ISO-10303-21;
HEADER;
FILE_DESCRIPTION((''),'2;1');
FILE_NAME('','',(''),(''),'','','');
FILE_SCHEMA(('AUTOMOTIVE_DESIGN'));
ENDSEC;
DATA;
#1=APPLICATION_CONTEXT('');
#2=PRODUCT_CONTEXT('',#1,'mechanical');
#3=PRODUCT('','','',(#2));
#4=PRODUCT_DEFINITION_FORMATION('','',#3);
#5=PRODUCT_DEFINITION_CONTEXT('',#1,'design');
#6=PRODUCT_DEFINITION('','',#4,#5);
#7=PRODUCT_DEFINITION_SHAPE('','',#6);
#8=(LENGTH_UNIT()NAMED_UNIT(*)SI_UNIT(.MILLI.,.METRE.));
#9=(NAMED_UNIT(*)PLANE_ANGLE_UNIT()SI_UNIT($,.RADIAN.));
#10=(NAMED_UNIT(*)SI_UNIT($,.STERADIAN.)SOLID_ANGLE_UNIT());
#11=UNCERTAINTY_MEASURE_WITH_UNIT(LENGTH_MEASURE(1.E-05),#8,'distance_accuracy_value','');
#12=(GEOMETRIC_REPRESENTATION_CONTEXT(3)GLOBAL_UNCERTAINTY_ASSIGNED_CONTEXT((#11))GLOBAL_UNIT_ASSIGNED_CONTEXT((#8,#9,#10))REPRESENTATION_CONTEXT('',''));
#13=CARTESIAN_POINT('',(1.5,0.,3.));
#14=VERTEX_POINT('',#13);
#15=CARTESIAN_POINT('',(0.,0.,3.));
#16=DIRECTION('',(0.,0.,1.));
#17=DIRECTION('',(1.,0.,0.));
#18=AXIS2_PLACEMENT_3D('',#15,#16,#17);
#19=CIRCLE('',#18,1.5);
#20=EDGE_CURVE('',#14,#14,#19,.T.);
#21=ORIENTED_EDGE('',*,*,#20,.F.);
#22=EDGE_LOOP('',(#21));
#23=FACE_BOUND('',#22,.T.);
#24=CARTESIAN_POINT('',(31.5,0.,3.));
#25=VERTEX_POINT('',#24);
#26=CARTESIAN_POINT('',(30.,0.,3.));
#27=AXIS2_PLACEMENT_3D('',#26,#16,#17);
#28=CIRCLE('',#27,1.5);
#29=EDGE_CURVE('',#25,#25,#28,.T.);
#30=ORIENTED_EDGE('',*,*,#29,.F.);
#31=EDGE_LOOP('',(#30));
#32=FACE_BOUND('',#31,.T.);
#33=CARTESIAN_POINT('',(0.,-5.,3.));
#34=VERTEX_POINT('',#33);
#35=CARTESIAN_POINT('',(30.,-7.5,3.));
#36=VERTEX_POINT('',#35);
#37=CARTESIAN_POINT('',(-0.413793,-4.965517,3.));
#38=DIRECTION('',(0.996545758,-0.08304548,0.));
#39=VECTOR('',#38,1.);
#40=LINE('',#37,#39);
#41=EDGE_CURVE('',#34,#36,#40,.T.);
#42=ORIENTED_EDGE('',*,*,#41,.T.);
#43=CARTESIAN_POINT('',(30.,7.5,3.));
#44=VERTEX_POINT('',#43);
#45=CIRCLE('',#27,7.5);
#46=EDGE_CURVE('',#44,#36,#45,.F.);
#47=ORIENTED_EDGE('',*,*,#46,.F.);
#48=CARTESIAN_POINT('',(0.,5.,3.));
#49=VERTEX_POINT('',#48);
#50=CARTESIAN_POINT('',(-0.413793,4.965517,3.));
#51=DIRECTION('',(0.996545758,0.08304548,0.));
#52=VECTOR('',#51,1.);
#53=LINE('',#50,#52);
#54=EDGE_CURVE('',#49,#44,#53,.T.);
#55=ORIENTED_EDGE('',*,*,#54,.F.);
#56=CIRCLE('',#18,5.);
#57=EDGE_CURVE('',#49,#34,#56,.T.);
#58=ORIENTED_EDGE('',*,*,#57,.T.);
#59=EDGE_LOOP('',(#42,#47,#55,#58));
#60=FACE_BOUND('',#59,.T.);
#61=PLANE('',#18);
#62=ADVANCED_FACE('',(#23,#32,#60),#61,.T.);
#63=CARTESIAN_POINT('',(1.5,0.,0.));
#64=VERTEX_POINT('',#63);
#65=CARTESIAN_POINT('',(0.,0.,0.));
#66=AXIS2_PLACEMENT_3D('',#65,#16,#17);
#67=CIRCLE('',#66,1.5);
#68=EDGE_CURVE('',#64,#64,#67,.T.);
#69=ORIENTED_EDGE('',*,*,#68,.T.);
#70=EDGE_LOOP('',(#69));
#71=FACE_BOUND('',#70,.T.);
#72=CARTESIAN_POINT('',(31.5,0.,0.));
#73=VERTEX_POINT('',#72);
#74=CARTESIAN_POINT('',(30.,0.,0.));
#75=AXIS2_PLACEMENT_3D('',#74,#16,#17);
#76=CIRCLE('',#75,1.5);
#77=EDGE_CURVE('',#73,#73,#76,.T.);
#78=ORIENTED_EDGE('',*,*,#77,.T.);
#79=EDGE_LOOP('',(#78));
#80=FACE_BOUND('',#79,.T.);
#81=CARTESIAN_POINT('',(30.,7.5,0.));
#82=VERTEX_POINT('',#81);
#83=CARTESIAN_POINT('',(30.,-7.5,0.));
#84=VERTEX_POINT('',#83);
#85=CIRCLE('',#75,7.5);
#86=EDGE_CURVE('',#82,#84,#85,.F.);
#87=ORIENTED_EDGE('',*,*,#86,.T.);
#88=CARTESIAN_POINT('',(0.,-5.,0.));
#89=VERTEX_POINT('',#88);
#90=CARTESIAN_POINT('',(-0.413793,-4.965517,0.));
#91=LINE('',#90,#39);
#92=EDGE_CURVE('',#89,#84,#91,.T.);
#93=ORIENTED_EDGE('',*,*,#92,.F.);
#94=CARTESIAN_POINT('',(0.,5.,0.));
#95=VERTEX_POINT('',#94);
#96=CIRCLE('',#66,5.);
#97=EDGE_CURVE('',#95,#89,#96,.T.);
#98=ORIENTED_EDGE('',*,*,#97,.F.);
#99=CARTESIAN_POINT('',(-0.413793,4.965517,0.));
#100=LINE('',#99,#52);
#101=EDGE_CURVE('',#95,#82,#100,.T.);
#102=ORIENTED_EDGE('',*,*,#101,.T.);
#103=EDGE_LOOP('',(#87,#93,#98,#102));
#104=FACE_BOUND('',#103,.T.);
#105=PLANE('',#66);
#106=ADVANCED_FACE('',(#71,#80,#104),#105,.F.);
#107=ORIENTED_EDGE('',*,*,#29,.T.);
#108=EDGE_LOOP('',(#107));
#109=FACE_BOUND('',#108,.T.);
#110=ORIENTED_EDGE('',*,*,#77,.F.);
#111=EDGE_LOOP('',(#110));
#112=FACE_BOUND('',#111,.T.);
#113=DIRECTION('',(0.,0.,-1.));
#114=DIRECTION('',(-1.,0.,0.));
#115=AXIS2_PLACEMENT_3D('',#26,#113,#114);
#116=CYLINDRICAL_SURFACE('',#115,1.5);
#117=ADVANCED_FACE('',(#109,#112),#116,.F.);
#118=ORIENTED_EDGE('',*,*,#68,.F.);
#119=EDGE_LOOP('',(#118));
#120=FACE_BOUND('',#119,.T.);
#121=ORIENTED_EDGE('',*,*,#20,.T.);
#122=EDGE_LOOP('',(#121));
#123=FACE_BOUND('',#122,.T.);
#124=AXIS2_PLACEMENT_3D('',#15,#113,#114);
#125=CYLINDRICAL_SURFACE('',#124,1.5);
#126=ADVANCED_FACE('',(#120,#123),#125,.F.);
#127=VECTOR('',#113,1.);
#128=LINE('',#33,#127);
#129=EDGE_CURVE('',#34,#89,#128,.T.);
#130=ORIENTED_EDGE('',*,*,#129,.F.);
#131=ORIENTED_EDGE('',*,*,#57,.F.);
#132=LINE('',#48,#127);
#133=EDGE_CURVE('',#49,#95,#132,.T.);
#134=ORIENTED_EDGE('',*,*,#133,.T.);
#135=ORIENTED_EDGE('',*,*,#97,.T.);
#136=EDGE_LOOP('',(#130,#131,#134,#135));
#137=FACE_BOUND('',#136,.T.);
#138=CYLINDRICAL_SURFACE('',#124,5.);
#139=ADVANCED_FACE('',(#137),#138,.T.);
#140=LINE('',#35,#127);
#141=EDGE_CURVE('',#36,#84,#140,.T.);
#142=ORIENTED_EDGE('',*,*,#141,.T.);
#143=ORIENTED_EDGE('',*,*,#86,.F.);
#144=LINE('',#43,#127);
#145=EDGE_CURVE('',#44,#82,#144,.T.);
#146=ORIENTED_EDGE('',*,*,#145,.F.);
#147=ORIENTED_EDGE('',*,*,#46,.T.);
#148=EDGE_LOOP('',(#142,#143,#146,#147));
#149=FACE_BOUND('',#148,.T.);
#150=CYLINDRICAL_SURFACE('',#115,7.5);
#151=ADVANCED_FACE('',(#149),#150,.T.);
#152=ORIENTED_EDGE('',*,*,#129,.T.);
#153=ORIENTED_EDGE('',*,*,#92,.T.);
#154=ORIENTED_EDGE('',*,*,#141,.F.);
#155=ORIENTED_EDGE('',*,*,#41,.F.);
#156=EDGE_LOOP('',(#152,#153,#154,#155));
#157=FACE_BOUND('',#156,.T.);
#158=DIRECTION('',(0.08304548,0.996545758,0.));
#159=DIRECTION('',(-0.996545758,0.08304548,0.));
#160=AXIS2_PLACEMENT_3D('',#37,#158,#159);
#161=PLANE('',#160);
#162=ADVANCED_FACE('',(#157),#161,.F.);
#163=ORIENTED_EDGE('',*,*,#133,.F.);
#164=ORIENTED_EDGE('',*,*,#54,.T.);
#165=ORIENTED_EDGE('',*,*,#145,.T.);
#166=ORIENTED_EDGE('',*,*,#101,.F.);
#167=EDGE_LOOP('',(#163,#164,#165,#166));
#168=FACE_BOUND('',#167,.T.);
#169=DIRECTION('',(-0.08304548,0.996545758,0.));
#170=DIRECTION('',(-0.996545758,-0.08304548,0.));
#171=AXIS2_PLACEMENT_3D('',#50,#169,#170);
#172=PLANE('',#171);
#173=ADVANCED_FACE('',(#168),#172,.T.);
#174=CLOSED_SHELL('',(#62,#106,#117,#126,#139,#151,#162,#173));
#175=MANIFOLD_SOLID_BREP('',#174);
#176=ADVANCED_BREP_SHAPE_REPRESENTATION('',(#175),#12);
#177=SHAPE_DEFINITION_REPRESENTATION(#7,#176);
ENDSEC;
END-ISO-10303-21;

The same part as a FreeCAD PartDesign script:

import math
import FreeCAD as App
import Part
import Sketcher

doc = App.newDocument("Part")
body = doc.addObject("PartDesign::Body", "Body")

sketch1 = body.newObject("Sketcher::SketchObject", "Sketch")
sketch1.AttachmentSupport = (doc.getObject("XY_Plane"), [""])
sketch1.MapMode = "FlatFace"
sketch1.addGeometry(Part.ArcOfCircle(Part.Circle(App.Vector(30, 0, 0), App.Vector(0, 0, 1), 7.5), math.radians(-90), math.radians(90)), False)
sketch1.addGeometry(Part.LineSegment(App.Vector(30, 7.5, 0), App.Vector(0, 5, 0)), False)
sketch1.addGeometry(Part.ArcOfCircle(Part.Circle(App.Vector(0, 0, 0), App.Vector(0, 0, 1), 5), math.radians(90), math.radians(270)), False)
sketch1.addGeometry(Part.LineSegment(App.Vector(0, -5, 0), App.Vector(30, -7.5, 0)), False)
sketch1.addGeometry(Part.Circle(App.Vector(30, 0, 0), App.Vector(0, 0, 1), 1.5), False)
sketch1.addGeometry(Part.Circle(App.Vector(0, 0, 0), App.Vector(0, 0, 1), 1.5), False)
sketch1.addConstraint(Sketcher.Constraint("Coincident", 0, 2, 1, 1))
sketch1.addConstraint(Sketcher.Constraint("Coincident", 1, 2, 2, 1))
sketch1.addConstraint(Sketcher.Constraint("Coincident", 2, 2, 3, 1))
sketch1.addConstraint(Sketcher.Constraint("Coincident", 3, 2, 0, 1))
sketch1.addConstraint(Sketcher.Constraint("Coincident", 2, 3, -1, 1))
sketch1.addConstraint(Sketcher.Constraint("Coincident", 5, 3, -1, 1))
sketch1.addConstraint(Sketcher.Constraint("Coincident", 4, 3, 0, 3))
sketch1.addConstraint(Sketcher.Constraint("Equal", 4, 5))
sketch1.addConstraint(Sketcher.Constraint("Symmetric", 0, 2, 3, 2, -1))
sketch1.addConstraint(Sketcher.Constraint("PointOnObject", 1, 2, -2))
sketch1.addConstraint(Sketcher.Constraint("PointOnObject", 2, 2, -2))
sketch1.addConstraint(Sketcher.Constraint("Vertical", 4, 3, 0, 2))
sketch1.addConstraint(Sketcher.Constraint("Diameter", 4, 3.0))
sketch1.addConstraint(Sketcher.Constraint("Radius", 2, 5.0))
sketch1.addConstraint(Sketcher.Constraint("Radius", 0, 7.5))
sketch1.addConstraint(Sketcher.Constraint("DistanceX", -1, 1, 0, 3, 30.0))
pad1 = body.newObject("PartDesign::Pad", "Pad")
pad1.Profile = sketch1
pad1.Length = 3

doc.recompute()
